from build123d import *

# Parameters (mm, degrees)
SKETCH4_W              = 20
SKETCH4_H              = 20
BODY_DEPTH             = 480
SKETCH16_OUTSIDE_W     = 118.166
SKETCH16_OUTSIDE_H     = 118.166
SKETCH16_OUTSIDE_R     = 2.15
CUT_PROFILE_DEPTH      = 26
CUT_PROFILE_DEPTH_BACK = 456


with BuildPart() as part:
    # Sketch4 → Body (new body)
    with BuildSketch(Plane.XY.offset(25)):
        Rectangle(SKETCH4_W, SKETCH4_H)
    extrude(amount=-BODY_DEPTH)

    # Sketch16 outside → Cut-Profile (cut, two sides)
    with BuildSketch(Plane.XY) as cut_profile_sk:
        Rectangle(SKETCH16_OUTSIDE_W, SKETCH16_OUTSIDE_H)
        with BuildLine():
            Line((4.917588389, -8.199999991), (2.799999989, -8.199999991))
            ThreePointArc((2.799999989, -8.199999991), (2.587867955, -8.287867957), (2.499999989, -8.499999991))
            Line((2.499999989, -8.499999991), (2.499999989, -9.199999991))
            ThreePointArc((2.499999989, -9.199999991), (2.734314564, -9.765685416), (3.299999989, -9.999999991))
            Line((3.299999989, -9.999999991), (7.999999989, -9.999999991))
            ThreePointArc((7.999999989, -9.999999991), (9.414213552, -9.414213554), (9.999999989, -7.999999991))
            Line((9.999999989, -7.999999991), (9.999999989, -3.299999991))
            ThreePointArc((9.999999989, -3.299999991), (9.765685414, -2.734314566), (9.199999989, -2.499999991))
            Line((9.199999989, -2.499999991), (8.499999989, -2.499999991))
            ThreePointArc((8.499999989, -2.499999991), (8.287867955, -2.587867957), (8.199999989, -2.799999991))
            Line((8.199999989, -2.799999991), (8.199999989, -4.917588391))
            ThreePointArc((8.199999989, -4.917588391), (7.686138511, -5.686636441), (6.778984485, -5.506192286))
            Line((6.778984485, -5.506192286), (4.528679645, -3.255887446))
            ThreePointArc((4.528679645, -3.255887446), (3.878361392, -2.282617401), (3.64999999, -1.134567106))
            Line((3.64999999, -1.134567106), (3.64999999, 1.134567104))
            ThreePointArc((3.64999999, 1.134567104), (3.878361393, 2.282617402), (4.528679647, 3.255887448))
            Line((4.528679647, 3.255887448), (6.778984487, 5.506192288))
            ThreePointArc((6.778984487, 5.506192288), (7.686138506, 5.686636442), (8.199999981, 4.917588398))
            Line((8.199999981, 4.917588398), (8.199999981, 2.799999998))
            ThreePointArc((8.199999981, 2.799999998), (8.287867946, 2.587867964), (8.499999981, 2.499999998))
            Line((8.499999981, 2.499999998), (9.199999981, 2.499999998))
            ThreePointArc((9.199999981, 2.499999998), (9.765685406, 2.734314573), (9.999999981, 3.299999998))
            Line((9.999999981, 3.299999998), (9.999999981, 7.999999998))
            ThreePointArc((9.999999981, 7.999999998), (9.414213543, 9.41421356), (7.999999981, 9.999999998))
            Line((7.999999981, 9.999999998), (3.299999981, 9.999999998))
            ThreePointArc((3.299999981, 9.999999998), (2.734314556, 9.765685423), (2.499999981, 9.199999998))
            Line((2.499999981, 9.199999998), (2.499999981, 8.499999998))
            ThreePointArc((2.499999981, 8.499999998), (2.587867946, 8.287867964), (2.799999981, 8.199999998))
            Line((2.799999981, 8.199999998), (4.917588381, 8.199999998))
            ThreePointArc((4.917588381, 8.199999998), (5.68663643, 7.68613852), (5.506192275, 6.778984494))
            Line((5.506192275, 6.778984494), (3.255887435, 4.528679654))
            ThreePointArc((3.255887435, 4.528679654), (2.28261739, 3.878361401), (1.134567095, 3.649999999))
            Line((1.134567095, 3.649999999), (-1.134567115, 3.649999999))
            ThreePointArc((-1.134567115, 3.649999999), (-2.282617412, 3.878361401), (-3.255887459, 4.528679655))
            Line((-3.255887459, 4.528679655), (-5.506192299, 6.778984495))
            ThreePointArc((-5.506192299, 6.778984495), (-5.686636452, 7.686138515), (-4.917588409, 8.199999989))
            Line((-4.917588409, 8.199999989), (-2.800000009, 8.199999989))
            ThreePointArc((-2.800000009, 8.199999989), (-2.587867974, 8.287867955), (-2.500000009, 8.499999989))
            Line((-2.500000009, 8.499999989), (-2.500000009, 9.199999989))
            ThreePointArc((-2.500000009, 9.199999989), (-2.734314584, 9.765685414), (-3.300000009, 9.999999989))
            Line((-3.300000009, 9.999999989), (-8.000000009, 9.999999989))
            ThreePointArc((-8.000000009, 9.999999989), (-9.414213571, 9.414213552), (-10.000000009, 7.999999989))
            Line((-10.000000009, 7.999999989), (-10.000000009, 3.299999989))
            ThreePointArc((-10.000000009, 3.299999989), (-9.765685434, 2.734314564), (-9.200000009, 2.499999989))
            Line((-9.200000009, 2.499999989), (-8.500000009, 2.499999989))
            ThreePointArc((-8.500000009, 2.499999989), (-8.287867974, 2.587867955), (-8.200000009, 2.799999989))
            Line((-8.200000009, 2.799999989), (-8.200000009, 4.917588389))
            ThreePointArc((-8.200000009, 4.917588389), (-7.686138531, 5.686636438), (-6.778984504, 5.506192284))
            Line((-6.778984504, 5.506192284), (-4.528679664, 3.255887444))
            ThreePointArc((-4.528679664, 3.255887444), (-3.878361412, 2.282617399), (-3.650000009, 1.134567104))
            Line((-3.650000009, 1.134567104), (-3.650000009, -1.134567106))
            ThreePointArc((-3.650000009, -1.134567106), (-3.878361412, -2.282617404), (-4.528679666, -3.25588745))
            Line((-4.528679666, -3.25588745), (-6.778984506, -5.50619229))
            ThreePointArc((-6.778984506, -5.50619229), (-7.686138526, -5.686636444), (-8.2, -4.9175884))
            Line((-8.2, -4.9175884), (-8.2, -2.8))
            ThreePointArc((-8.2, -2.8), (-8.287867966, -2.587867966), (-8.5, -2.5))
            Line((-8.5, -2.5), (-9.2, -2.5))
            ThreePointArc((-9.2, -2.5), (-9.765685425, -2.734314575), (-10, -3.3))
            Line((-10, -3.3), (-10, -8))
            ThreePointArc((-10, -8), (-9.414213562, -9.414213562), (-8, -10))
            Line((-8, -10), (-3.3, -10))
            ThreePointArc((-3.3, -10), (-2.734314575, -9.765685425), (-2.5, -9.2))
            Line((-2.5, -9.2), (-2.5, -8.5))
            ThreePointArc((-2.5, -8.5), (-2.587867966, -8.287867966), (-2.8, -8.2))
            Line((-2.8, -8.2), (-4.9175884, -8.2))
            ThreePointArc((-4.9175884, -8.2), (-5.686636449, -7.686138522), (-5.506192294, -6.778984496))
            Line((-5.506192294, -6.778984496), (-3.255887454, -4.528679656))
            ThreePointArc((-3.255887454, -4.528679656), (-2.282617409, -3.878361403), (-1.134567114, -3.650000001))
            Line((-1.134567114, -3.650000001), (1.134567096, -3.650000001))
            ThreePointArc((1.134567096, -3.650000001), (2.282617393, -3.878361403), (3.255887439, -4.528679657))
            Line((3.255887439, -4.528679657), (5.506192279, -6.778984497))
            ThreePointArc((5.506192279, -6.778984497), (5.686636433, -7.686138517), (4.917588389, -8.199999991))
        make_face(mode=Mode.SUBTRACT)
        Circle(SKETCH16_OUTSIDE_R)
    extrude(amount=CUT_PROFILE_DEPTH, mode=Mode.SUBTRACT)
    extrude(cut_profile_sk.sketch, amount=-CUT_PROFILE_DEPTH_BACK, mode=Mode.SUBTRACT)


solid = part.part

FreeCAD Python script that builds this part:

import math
import FreeCAD as App
import Part
import Sketcher
from FreeCAD import Vector

doc = App.newDocument("Part")
params = doc.addObject("Spreadsheet::Sheet", "Params")
for row, (alias, value) in enumerate([
    ("sketch1_width", "20 mm"),
    ("pad1_length", "480 mm"),
    ("sketch2_radius", "3 mm"),
    ("sketch2_radius2", "2 mm"),
    ("sketch2_diameter", "4.3 mm"),
    ("sketch2_radius3", "0.3 mm"),
    ("sketch2_radius4", "0.8 mm"),
], start=1):
    params.set(f"A{row}", alias)
    params.set(f"B{row}", "=" + value)
    params.setAlias(f"B{row}", alias)

body = doc.addObject("PartDesign::Body", "Body")

# Sketch on XY plane
sketch1 = doc.addObject("Sketcher::SketchObject", "Sketch")
body.addObject(sketch1)
sketch1.AttachmentSupport = (doc.XY_Plane, [""])
sketch1.MapMode = "FlatFace"
sketch1.AttachmentOffset = App.Placement(Vector(0, 0, 25), App.Rotation())
sketch1.addGeometry([
    Part.LineSegment(Vector(-10, 10, 0), Vector(-10, -10, 0)),
    Part.LineSegment(Vector(-10, -10, 0), Vector(10, -10, 0)),
    Part.LineSegment(Vector(10, -10, 0), Vector(10, 10, 0)),
    Part.LineSegment(Vector(10, 10, 0), Vector(-10, 10, 0)),
], False)
sketch1.addConstraint([
    Sketcher.Constraint("Coincident", 0, 2, 1, 1),
    Sketcher.Constraint("Coincident", 1, 2, 2, 1),
    Sketcher.Constraint("Coincident", 2, 2, 3, 1),
    Sketcher.Constraint("Coincident", 3, 2, 0, 1),
    Sketcher.Constraint("Vertical", 0),
    Sketcher.Constraint("Horizontal", 1),
    Sketcher.Constraint("Vertical", 2),
    Sketcher.Constraint("Horizontal", 3),
    Sketcher.Constraint("Symmetric", 0, 2, 2, 2, -1, 1),
    Sketcher.Constraint("Equal", 3, 0),
    Sketcher.Constraint("DistanceX", 1, 1, 1, 2, 20.0),
])
sketch1.setExpression("Constraints[10]", "Params.sketch1_width")
pad1 = doc.addObject("PartDesign::Pad", "Pad")
body.addObject(pad1)
pad1.Profile = sketch1
pad1.setExpression("Length", "Params.pad1_length")
pad1.Reversed = True

# Sketch on XY plane
sketch2 = doc.addObject("Sketcher::SketchObject", "Sketch001")
body.addObject(sketch2)
sketch2.AttachmentSupport = (doc.XY_Plane, [""])
sketch2.MapMode = "FlatFace"
sketch2.addGeometry([
    Part.LineSegment(Vector(-59.083, 59.083, 0), Vector(-59.083, -59.083, 0)),  # 0
    Part.LineSegment(Vector(-59.083, -59.083, 0), Vector(59.083, -59.083, 0)),  # 1
    Part.LineSegment(Vector(59.083, -59.083, 0), Vector(59.083, 59.083, 0)),  # 2
    Part.LineSegment(Vector(59.083, 59.083, 0), Vector(-59.083, 59.083, 0)),  # 3
    Part.LineSegment(Vector(2.8, -8.2, 0), Vector(4.917588, -8.2, 0)),  # 4
    Part.ArcOfCircle(Part.Circle(Vector(4.917588, -7.367588, 0), Vector(0, 0, 1), 0.832412), math.radians(-90), math.radians(45)),  # 5
    Part.LineSegment(Vector(5.506192, -6.778984, 0), Vector(3.255887, -4.52868, 0)),  # 6
    Part.ArcOfCircle(Part.Circle(Vector(1.134567, -6.65, 0), Vector(0, 0, 1), 3), math.radians(45), math.radians(90)),  # 7
    Part.LineSegment(Vector(1.134567, -3.65, 0), Vector(-1.134567, -3.65, 0)),  # 8
    Part.ArcOfCircle(Part.Circle(Vector(-1.134567, -6.65, 0), Vector(0, 0, 1), 3), math.radians(90), math.radians(135)),  # 9
    Part.LineSegment(Vector(-3.255887, -4.52868, 0), Vector(-5.506192, -6.778984, 0)),  # 10
    Part.ArcOfCircle(Part.Circle(Vector(-4.917588, -7.367588, 0), Vector(0, 0, 1), 0.832412), math.radians(135), math.radians(270)),  # 11
    Part.LineSegment(Vector(-4.917588, -8.2, 0), Vector(-2.8, -8.2, 0)),  # 12
    Part.ArcOfCircle(Part.Circle(Vector(-2.8, -8.5, 0), Vector(0, 0, 1), 0.3), math.radians(0), math.radians(90)),  # 13
    Part.LineSegment(Vector(-2.5, -8.5, 0), Vector(-2.5, -9.2, 0)),  # 14
    Part.ArcOfCircle(Part.Circle(Vector(-3.3, -9.2, 0), Vector(0, 0, 1), 0.8), math.radians(-90), math.radians(0)),  # 15
    Part.LineSegment(Vector(-3.3, -10, 0), Vector(-8, -10, 0)),  # 16
    Part.ArcOfCircle(Part.Circle(Vector(-8, -8, 0), Vector(0, 0, 1), 2), math.radians(-180), math.radians(-90)),  # 17
    Part.LineSegment(Vector(-10, -8, 0), Vector(-10, -3.3, 0)),  # 18
    Part.ArcOfCircle(Part.Circle(Vector(-9.2, -3.3, 0), Vector(0, 0, 1), 0.8), math.radians(90), math.radians(180)),  # 19
    Part.LineSegment(Vector(-9.2, -2.5, 0), Vector(-8.5, -2.5, 0)),  # 20
    Part.ArcOfCircle(Part.Circle(Vector(-8.5, -2.8, 0), Vector(0, 0, 1), 0.3), math.radians(0), math.radians(90)),  # 21
    Part.LineSegment(Vector(-8.2, -2.8, 0), Vector(-8.2, -4.917588, 0)),  # 22
    Part.ArcOfCircle(Part.Circle(Vector(-7.367588, -4.917588, 0), Vector(0, 0, 1), 0.832412), math.radians(180), math.radians(315)),  # 23
    Part.LineSegment(Vector(-6.778985, -5.506192, 0), Vector(-4.52868, -3.255887, 0)),  # 24
    Part.ArcOfCircle(Part.Circle(Vector(-6.65, -1.134567, 0), Vector(0, 0, 1), 3), math.radians(-45), math.radians(0)),  # 25
    Part.LineSegment(Vector(-3.65, -1.134567, 0), Vector(-3.65, 1.134567, 0)),  # 26
    Part.ArcOfCircle(Part.Circle(Vector(-6.65, 1.134567, 0), Vector(0, 0, 1), 3), math.radians(0), math.radians(45)),  # 27
    Part.LineSegment(Vector(-4.52868, 3.255887, 0), Vector(-6.778985, 5.506192, 0)),  # 28
    Part.ArcOfCircle(Part.Circle(Vector(-7.367588, 4.917588, 0), Vector(0, 0, 1), 0.832412), math.radians(45), math.radians(180)),  # 29
    Part.LineSegment(Vector(-8.2, 4.917588, 0), Vector(-8.2, 2.8, 0)),  # 30
    Part.ArcOfCircle(Part.Circle(Vector(-8.5, 2.8, 0), Vector(0, 0, 1), 0.3), math.radians(-90), math.radians(0)),  # 31
    Part.LineSegment(Vector(-8.5, 2.5, 0), Vector(-9.2, 2.5, 0)),  # 32
    Part.ArcOfCircle(Part.Circle(Vector(-9.2, 3.3, 0), Vector(0, 0, 1), 0.8), math.radians(180), math.radians(270)),  # 33
    Part.LineSegment(Vector(-10, 3.3, 0), Vector(-10, 8, 0)),  # 34
    Part.ArcOfCircle(Part.Circle(Vector(-8, 8, 0), Vector(0, 0, 1), 2), math.radians(90), math.radians(180)),  # 35
    Part.LineSegment(Vector(-8, 10, 0), Vector(-3.3, 10, 0)),  # 36
    Part.ArcOfCircle(Part.Circle(Vector(-3.3, 9.2, 0), Vector(0, 0, 1), 0.8), math.radians(0), math.radians(90)),  # 37
    Part.LineSegment(Vector(-2.5, 9.2, 0), Vector(-2.5, 8.5, 0)),  # 38
    Part.ArcOfCircle(Part.Circle(Vector(-2.8, 8.5, 0), Vector(0, 0, 1), 0.3), math.radians(-90), math.radians(0)),  # 39
    Part.LineSegment(Vector(-2.8, 8.2, 0), Vector(-4.917588, 8.2, 0)),  # 40
    Part.ArcOfCircle(Part.Circle(Vector(-4.917588, 7.367588, 0), Vector(0, 0, 1), 0.832412), math.radians(90), math.radians(225)),  # 41
    Part.LineSegment(Vector(-5.506192, 6.778984, 0), Vector(-3.255887, 4.52868, 0)),  # 42
    Part.ArcOfCircle(Part.Circle(Vector(-1.134567, 6.65, 0), Vector(0, 0, 1), 3), math.radians(-135), math.radians(-90)),  # 43
    Part.LineSegment(Vector(-1.134567, 3.65, 0), Vector(1.134567, 3.65, 0)),  # 44
    Part.ArcOfCircle(Part.Circle(Vector(1.134567, 6.65, 0), Vector(0, 0, 1), 3), math.radians(-90), math.radians(-45)),  # 45
    Part.LineSegment(Vector(3.255887, 4.52868, 0), Vector(5.506192, 6.778984, 0)),  # 46
    Part.ArcOfCircle(Part.Circle(Vector(4.917588, 7.367588, 0), Vector(0, 0, 1), 0.832412), math.radians(-45), math.radians(90)),  # 47
    Part.LineSegment(Vector(4.917588, 8.2, 0), Vector(2.8, 8.2, 0)),  # 48
    Part.ArcOfCircle(Part.Circle(Vector(2.8, 8.5, 0), Vector(0, 0, 1), 0.3), math.radians(180), math.radians(270)),  # 49
    Part.LineSegment(Vector(2.5, 8.5, 0), Vector(2.5, 9.2, 0)),  # 50
    Part.ArcOfCircle(Part.Circle(Vector(3.3, 9.2, 0), Vector(0, 0, 1), 0.8), math.radians(90), math.radians(180)),  # 51
    Part.LineSegment(Vector(3.3, 10, 0), Vector(8, 10, 0)),  # 52
    Part.ArcOfCircle(Part.Circle(Vector(8, 8, 0), Vector(0, 0, 1), 2), math.radians(0), math.radians(90)),  # 53
    Part.LineSegment(Vector(10, 8, 0), Vector(10, 3.3, 0)),  # 54
    Part.ArcOfCircle(Part.Circle(Vector(9.2, 3.3, 0), Vector(0, 0, 1), 0.8), math.radians(-90), math.radians(0)),  # 55
    Part.LineSegment(Vector(9.2, 2.5, 0), Vector(8.5, 2.5, 0)),  # 56
    Part.ArcOfCircle(Part.Circle(Vector(8.5, 2.8, 0), Vector(0, 0, 1), 0.3), math.radians(180), math.radians(270)),  # 57
    Part.LineSegment(Vector(8.2, 2.8, 0), Vector(8.2, 4.917588, 0)),  # 58
    Part.ArcOfCircle(Part.Circle(Vector(7.367588, 4.917588, 0), Vector(0, 0, 1), 0.832412), math.radians(0), math.radians(135)),  # 59
    Part.LineSegment(Vector(6.778984, 5.506192, 0), Vector(4.52868, 3.255887, 0)),  # 60
    Part.ArcOfCircle(Part.Circle(Vector(6.65, 1.134567, 0), Vector(0, 0, 1), 3), math.radians(135), math.radians(180)),  # 61
    Part.LineSegment(Vector(3.65, 1.134567, 0), Vector(3.65, -1.134567, 0)),  # 62
    Part.ArcOfCircle(Part.Circle(Vector(6.65, -1.134567, 0), Vector(0, 0, 1), 3), math.radians(180), math.radians(225)),  # 63
    Part.LineSegment(Vector(4.52868, -3.255887, 0), Vector(6.778984, -5.506192, 0)),  # 64
    Part.ArcOfCircle(Part.Circle(Vector(7.367588, -4.917588, 0), Vector(0, 0, 1), 0.832412), math.radians(-135), math.radians(0)),  # 65
    Part.LineSegment(Vector(8.2, -4.917588, 0), Vector(8.2, -2.8, 0)),  # 66
    Part.ArcOfCircle(Part.Circle(Vector(8.5, -2.8, 0), Vector(0, 0, 1), 0.3), math.radians(90), math.radians(180)),  # 67
    Part.LineSegment(Vector(8.5, -2.5, 0), Vector(9.2, -2.5, 0)),  # 68
    Part.ArcOfCircle(Part.Circle(Vector(9.2, -3.3, 0), Vector(0, 0, 1), 0.8), math.radians(0), math.radians(90)),  # 69
    Part.LineSegment(Vector(10, -3.3, 0), Vector(10, -8, 0)),  # 70
    Part.ArcOfCircle(Part.Circle(Vector(8, -8, 0), Vector(0, 0, 1), 2), math.radians(-90), math.radians(0)),  # 71
    Part.LineSegment(Vector(8, -10, 0), Vector(3.3, -10, 0)),  # 72
    Part.ArcOfCircle(Part.Circle(Vector(3.3, -9.2, 0), Vector(0, 0, 1), 0.8), math.radians(180), math.radians(270)),  # 73
    Part.LineSegment(Vector(2.5, -9.2, 0), Vector(2.5, -8.5, 0)),  # 74
    Part.ArcOfCircle(Part.Circle(Vector(2.8, -8.5, 0), Vector(0, 0, 1), 0.3), math.radians(90), math.radians(180)),  # 75
    Part.Circle(Vector(0, 0, 0), Vector(0, 0, 1), 2.15),  # 76
], False)
sketch2.addConstraint([
    Sketcher.Constraint("Coincident", 0, 2, 1, 1),
    Sketcher.Constraint("Coincident", 1, 2, 2, 1),
    Sketcher.Constraint("Coincident", 2, 2, 3, 1),
    Sketcher.Constraint("Coincident", 3, 2, 0, 1),
    Sketcher.Constraint("Tangent", 4, 2, 5, 1),
    Sketcher.Constraint("Tangent", 5, 2, 6, 1),
    Sketcher.Constraint("Tangent", 6, 2, 7, 1),
    Sketcher.Constraint("Tangent", 7, 2, 8, 1),
    Sketcher.Constraint("Tangent", 8, 2, 9, 1),
    Sketcher.Constraint("Tangent", 9, 2, 10, 1),
    Sketcher.Constraint("Tangent", 10, 2, 11, 1),
    Sketcher.Constraint("Tangent", 11, 2, 12, 1),
    Sketcher.Constraint("Tangent", 12, 2, 13, 2),
    Sketcher.Constraint("Tangent", 13, 1, 14, 1),
    Sketcher.Constraint("Tangent", 14, 2, 15, 2),
    Sketcher.Constraint("Tangent", 15, 1, 16, 1),
    Sketcher.Constraint("Tangent", 16, 2, 17, 2),
    Sketcher.Constraint("Tangent", 17, 1, 18, 1),
    Sketcher.Constraint("Tangent", 18, 2, 19, 2),
    Sketcher.Constraint("Tangent", 19, 1, 20, 1),
    Sketcher.Constraint("Tangent", 20, 2, 21, 2),
    Sketcher.Constraint("Tangent", 21, 1, 22, 1),
    Sketcher.Constraint("Tangent", 22, 2, 23, 1),
    Sketcher.Constraint("Tangent", 23, 2, 24, 1),
    Sketcher.Constraint("Tangent", 24, 2, 25, 1),
    Sketcher.Constraint("Tangent", 25, 2, 26, 1),
    Sketcher.Constraint("Tangent", 26, 2, 27, 1),
    Sketcher.Constraint("Tangent", 27, 2, 28, 1),
    Sketcher.Constraint("Tangent", 28, 2, 29, 1),
    Sketcher.Constraint("Tangent", 29, 2, 30, 1),
    Sketcher.Constraint("Tangent", 30, 2, 31, 2),
    Sketcher.Constraint("Tangent", 31, 1, 32, 1),
    Sketcher.Constraint("Tangent", 32, 2, 33, 2),
    Sketcher.Constraint("Tangent", 33, 1, 34, 1),
    Sketcher.Constraint("Tangent", 34, 2, 35, 2),
    Sketcher.Constraint("Tangent", 35, 1, 36, 1),
    Sketcher.Constraint("Tangent", 36, 2, 37, 2),
    Sketcher.Constraint("Tangent", 37, 1, 38, 1),
    Sketcher.Constraint("Tangent", 38, 2, 39, 2),
    Sketcher.Constraint("Tangent", 39, 1, 40, 1),
    Sketcher.Constraint("Tangent", 40, 2, 41, 1),
    Sketcher.Constraint("Tangent", 41, 2, 42, 1),
    Sketcher.Constraint("Tangent", 42, 2, 43, 1),
    Sketcher.Constraint("Tangent", 43, 2, 44, 1),
    Sketcher.Constraint("Tangent", 44, 2, 45, 1),
    Sketcher.Constraint("Tangent", 45, 2, 46, 1),
    Sketcher.Constraint("Tangent", 46, 2, 47, 1),
    Sketcher.Constraint("Tangent", 47, 2, 48, 1),
    Sketcher.Constraint("Tangent", 48, 2, 49, 2),
    Sketcher.Constraint("Tangent", 49, 1, 50, 1),
    Sketcher.Constraint("Tangent", 50, 2, 51, 2),
    Sketcher.Constraint("Tangent", 51, 1, 52, 1),
    Sketcher.Constraint("Tangent", 52, 2, 53, 2),
    Sketcher.Constraint("Tangent", 53, 1, 54, 1),
    Sketcher.Constraint("Tangent", 54, 2, 55, 2),
    Sketcher.Constraint("Tangent", 55, 1, 56, 1),
    Sketcher.Constraint("Tangent", 56, 2, 57, 2),
    Sketcher.Constraint("Tangent", 57, 1, 58, 1),
    Sketcher.Constraint("Tangent", 58, 2, 59, 1),
    Sketcher.Constraint("Tangent", 59, 2, 60, 1),
    Sketcher.Constraint("Tangent", 60, 2, 61, 1),
    Sketcher.Constraint("Tangent", 61, 2, 62, 1),
    Sketcher.Constraint("Tangent", 62, 2, 63, 1),
    Sketcher.Constraint("Tangent", 63, 2, 64, 1),
    Sketcher.Constraint("Tangent", 64, 2, 65, 1),
    Sketcher.Constraint("Tangent", 65, 2, 66, 1),
    Sketcher.Constraint("Tangent", 66, 2, 67, 2),
    Sketcher.Constraint("Tangent", 67, 1, 68, 1),
    Sketcher.Constraint("Tangent", 68, 2, 69, 2),
    Sketcher.Constraint("Tangent", 69, 1, 70, 1),
    Sketcher.Constraint("Tangent", 70, 2, 71, 2),
    Sketcher.Constraint("Tangent", 71, 1, 72, 1),
    Sketcher.Constraint("Tangent", 72, 2, 73, 2),
    Sketcher.Constraint("Tangent", 73, 1, 74, 1),
    Sketcher.Constraint("Tangent", 74, 2, 75, 2),
    Sketcher.Constraint("Tangent", 75, 1, 4, 1),
    Sketcher.Constraint("Vertical", 0),
    Sketcher.Constraint("Horizontal", 1),
    Sketcher.Constraint("Vertical", 2),
    Sketcher.Constraint("Horizontal", 3),
    Sketcher.Constraint("Horizontal", 4),
    Sketcher.Constraint("Horizontal", 8),
    Sketcher.Constraint("Horizontal", 12),
    Sketcher.Constraint("Vertical", 14),
    Sketcher.Constraint("Horizontal", 16),
    Sketcher.Constraint("Vertical", 18),
    Sketcher.Constraint("Horizontal", 20),
    Sketcher.Constraint("Vertical", 22),
    Sketcher.Constraint("Vertical", 26),
    Sketcher.Constraint("Vertical", 30),
    Sketcher.Constraint("Horizontal", 32),
    Sketcher.Constraint("Vertical", 34),
    Sketcher.Constraint("Horizontal", 36),
    Sketcher.Constraint("Vertical", 38),
    Sketcher.Constraint("Horizontal", 40),
    Sketcher.Constraint("Horizontal", 44),
    Sketcher.Constraint("Horizontal", 48),
    Sketcher.Constraint("Vertical", 50),
    Sketcher.Constraint("Horizontal", 52),
    Sketcher.Constraint("Vertical", 54),
    Sketcher.Constraint("Horizontal", 56),
    Sketcher.Constraint("Vertical", 58),
    Sketcher.Constraint("Vertical", 62),
    Sketcher.Constraint("Vertical", 66),
    Sketcher.Constraint("Horizontal", 68),
    Sketcher.Constraint("Vertical", 70),
    Sketcher.Constraint("Horizontal", 72),
    Sketcher.Constraint("Vertical", 74),
    Sketcher.Constraint("Coincident", 76, 3, -1, 1),
    Sketcher.Constraint("Equal", 7, 9),
    Sketcher.Constraint("Equal", 5, 11),
    Sketcher.Constraint("Equal", 15, 19),
    Sketcher.Constraint("Equal", 13, 21),
    Sketcher.Constraint("Equal", 11, 23),
    Sketcher.Constraint("Equal", 9, 25),
    Sketcher.Constraint("Equal", 25, 27),
    Sketcher.Constraint("Equal", 23, 29),
    Sketcher.Constraint("Equal", 21, 31),
    Sketcher.Constraint("Equal", 19, 33),
    Sketcher.Constraint("Equal", 17, 35),
    Sketcher.Constraint("Equal", 33, 37),
    Sketcher.Constraint("Equal", 31, 39),
    Sketcher.Constraint("Equal", 29, 41),
    Sketcher.Constraint("Equal", 27, 43),
    Sketcher.Constraint("Equal", 43, 45),
    Sketcher.Constraint("Equal", 41, 47),
    Sketcher.Constraint("Equal", 39, 49),
    Sketcher.Constraint("Equal", 37, 51),
    Sketcher.Constraint("Equal", 35, 53),
    Sketcher.Constraint("Equal", 51, 55),
    Sketcher.Constraint("Equal", 49, 57),
    Sketcher.Constraint("Equal", 47, 59),
    Sketcher.Constraint("Equal", 45, 61),
    Sketcher.Constraint("Equal", 61, 63),
    Sketcher.Constraint("Equal", 59, 65),
    Sketcher.Constraint("Equal", 57, 67),
    Sketcher.Constraint("Equal", 55, 69),
    Sketcher.Constraint("Equal", 53, 71),
    Sketcher.Constraint("Equal", 69, 73),
    Sketcher.Constraint("Equal", 67, 75),
    Sketcher.Constraint("Symmetric", 5, 3, 41, 3, -1, 1),
    Sketcher.Constraint("Symmetric", 7, 3, 43, 3, -1, 1),
    Sketcher.Constraint("Symmetric", 11, 3, 47, 3, -1, 1),
    Sketcher.Constraint("Symmetric", 15, 3, 51, 3, -1, 1),
    Sketcher.Constraint("Symmetric", 19, 3, 55, 3, -1, 1),
    Sketcher.Constraint("Symmetric", 23, 3, 59, 3, -1, 1),
    Sketcher.Constraint("Symmetric", 25, 3, 61, 3, -1, 1),
    Sketcher.Constraint("Symmetric", 29, 3, 65, 3, -1, 1),
    Sketcher.Constraint("Symmetric", 33, 3, 69, 3, -1, 1),
    Sketcher.Constraint("Symmetric", 37, 3, 73, 3, -1, 1),
    Sketcher.Constraint("Symmetric", 0, 2, 2, 2, -1, 1),
    Sketcher.Constraint("Symmetric", 5, 3, 11, 3, -2),
    Sketcher.Constraint("Symmetric", 37, 3, 51, 3, -2),
    Sketcher.Constraint("Symmetric", 33, 3, 55, 3, -2),
    Sketcher.Constraint("Symmetric", 29, 3, 59, 3, -2),
    Sketcher.Constraint("Perpendicular", 6, 10),
    Sketcher.Constraint("Parallel", 10, 24),
    Sketcher.Constraint("Perpendicular", 24, 28),
    Sketcher.Constraint("Perpendicular", 42, 46),
    Sketcher.Constraint("Perpendicular", 60, 64),
    Sketcher.Constraint("Horizontal", 27, 3, 61, 3),
    Sketcher.Constraint("Equal", 3, 0),
    Sketcher.Constraint("Equal", 68, 14),
    Sketcher.Constraint("Equal", 72, 18),
    Sketcher.Constraint("Equal", 48, 22),
    Sketcher.Constraint("Equal", 44, 26),
    Sketcher.Constraint("Equal", 10, 24),
    Sketcher.Constraint("Radius", 7, 3.0),
    Sketcher.Constraint("Radius", 17, 2.0),
    Sketcher.Constraint("Diameter", 76, 4.3),
    Sketcher.Constraint("Radius", 13, 0.3),
    Sketcher.Constraint("Radius", 15, 0.8),
    Sketcher.Constraint("DistanceX", 16, 2, 16, 1, 4.7),
    Sketcher.Constraint("DistanceX", 20, 1, 20, 2, 0.7),
    Sketcher.Constraint("DistanceX", 17, 3, -1, 1, 8.0),
    Sketcher.Constraint("DistanceX", 1, 1, 1, 2, 118.166),
    Sketcher.Constraint("DistanceY", 7, 3, -1, 1, 6.65),
    Sketcher.Constraint("Radius", 5, 0.832412),
    Sketcher.Constraint("DistanceX", 4, 1, 4, 2, 2.117588),
])
sketch2.setExpression("Constraints[167]", "Params.sketch2_radius")
sketch2.setExpression("Constraints[168]", "Params.sketch2_radius2")
sketch2.setExpression("Constraints[169]", "Params.sketch2_diameter")
sketch2.setExpression("Constraints[170]", "Params.sketch2_radius3")
sketch2.setExpression("Constraints[171]", "Params.sketch2_radius4")
pocket1 = doc.addObject("PartDesign::Pocket", "Pocket")
body.addObject(pocket1)
pocket1.Profile = sketch2
pocket1.Type = "ThroughAll"
pocket1.Midplane = True

doc.recompute()
